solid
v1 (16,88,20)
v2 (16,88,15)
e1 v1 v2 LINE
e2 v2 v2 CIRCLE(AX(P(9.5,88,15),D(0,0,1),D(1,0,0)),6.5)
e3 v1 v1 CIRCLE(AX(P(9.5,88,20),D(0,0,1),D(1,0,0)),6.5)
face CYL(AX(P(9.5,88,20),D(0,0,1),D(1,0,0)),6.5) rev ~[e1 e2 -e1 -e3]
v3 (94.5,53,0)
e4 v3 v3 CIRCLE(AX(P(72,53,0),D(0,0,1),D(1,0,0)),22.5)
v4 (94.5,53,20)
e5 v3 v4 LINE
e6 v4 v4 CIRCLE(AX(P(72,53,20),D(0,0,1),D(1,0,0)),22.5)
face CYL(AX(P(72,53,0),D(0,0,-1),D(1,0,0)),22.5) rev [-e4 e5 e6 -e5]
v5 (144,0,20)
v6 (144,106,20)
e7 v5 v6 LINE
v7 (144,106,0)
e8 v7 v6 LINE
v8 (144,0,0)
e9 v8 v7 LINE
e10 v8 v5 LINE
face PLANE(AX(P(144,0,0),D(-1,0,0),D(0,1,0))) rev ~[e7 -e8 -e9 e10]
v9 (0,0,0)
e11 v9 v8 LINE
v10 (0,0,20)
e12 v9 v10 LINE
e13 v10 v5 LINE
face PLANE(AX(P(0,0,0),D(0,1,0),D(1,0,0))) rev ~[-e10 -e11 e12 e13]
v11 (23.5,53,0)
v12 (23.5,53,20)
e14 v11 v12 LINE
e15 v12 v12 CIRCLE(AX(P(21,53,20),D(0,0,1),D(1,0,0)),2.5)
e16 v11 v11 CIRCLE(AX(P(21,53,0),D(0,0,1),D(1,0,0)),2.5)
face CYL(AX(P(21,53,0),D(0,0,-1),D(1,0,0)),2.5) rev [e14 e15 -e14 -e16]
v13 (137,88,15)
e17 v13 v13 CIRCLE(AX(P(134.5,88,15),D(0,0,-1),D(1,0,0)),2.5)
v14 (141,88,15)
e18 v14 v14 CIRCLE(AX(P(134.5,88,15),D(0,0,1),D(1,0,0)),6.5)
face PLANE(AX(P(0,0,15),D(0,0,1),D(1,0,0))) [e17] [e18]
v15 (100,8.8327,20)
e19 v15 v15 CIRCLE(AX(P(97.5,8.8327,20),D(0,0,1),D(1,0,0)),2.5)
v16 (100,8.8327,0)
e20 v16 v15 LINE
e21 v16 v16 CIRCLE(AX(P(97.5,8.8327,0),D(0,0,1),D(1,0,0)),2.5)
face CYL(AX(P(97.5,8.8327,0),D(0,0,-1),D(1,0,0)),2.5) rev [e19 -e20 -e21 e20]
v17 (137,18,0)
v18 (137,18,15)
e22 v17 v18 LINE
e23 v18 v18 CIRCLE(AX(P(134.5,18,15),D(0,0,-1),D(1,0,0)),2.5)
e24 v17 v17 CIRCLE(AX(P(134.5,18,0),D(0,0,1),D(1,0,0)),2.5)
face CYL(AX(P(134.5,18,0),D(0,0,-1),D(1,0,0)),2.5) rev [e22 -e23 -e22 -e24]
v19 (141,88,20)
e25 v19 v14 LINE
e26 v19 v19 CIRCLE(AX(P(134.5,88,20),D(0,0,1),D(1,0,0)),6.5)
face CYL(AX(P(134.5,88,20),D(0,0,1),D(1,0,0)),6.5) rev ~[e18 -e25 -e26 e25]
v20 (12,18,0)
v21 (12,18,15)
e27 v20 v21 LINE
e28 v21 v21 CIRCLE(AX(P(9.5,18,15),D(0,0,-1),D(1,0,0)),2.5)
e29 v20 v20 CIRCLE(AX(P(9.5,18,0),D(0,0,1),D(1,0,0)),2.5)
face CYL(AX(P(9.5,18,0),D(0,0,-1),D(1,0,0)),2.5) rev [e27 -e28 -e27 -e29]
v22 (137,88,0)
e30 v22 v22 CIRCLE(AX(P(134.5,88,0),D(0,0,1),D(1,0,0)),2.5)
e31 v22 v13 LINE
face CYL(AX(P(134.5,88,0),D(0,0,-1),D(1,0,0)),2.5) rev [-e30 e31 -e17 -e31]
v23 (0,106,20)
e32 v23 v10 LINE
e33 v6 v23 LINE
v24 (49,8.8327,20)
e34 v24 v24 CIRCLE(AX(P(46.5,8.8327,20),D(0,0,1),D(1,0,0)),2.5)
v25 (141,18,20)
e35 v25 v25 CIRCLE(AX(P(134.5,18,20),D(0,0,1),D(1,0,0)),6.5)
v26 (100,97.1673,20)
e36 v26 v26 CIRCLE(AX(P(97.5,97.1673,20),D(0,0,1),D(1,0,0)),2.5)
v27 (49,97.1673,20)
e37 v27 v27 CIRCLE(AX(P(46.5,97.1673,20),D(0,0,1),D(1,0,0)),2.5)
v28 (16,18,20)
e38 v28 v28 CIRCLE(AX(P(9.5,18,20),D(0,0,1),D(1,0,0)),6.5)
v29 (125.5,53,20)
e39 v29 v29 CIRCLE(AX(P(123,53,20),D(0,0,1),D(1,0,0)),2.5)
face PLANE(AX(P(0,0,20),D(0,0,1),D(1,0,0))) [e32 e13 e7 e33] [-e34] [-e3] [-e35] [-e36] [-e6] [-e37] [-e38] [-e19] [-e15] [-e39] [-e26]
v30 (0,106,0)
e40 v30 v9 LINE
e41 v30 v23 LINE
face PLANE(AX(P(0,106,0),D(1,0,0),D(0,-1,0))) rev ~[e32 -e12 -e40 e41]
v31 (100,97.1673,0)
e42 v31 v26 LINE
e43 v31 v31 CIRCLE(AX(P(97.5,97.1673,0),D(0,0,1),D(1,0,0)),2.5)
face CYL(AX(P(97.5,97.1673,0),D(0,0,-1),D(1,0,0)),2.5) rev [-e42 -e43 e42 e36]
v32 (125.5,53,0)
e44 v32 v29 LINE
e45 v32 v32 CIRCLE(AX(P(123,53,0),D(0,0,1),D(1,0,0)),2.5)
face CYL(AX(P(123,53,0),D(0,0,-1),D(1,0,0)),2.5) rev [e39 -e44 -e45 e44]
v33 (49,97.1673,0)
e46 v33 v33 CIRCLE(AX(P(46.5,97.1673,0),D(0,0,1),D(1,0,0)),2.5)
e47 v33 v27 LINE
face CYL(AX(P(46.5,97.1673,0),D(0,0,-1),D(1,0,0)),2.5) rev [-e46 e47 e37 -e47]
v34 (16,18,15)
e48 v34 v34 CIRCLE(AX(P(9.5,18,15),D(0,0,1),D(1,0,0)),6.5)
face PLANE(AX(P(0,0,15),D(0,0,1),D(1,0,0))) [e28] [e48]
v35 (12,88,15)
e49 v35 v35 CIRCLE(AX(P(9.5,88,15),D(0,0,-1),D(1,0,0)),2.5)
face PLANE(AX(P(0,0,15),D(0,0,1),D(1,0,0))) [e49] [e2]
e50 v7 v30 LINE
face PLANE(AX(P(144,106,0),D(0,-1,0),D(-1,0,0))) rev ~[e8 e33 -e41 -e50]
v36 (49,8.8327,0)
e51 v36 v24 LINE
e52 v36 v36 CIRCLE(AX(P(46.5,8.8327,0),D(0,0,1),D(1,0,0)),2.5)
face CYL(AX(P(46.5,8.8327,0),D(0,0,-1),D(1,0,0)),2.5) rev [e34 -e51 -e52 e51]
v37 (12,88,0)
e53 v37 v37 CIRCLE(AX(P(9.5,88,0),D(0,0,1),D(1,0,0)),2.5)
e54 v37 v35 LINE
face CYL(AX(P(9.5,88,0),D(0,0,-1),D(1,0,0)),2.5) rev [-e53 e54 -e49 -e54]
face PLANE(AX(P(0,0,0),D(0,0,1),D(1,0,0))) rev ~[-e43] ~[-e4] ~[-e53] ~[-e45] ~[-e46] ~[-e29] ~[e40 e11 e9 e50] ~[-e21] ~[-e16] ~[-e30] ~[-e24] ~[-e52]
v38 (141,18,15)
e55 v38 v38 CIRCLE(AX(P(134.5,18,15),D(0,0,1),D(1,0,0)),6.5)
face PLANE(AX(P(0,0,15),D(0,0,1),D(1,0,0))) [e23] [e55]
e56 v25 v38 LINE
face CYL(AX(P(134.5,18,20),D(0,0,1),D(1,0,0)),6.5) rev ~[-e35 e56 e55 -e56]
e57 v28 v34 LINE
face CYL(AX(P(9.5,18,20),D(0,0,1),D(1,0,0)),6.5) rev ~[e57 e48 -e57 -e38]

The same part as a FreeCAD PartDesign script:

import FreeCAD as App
import Part
import Sketcher

V = App.Vector
Q = App.Units.Quantity

doc = App.newDocument("Part")
body = doc.addObject("PartDesign::Body", "Body")

sketch1 = body.newObject("Sketcher::SketchObject", "Sketch")
sketch1.AttachmentSupport = (doc.getObject("XY_Plane"), [""])
sketch1.MapMode = "FlatFace"
sketch1.addGeometry(Part.LineSegment(V(0, 106, 0), V(0, 0, 0)), False)
sketch1.addGeometry(Part.LineSegment(V(0, 0, 0), V(144, 0, 0)), False)
sketch1.addGeometry(Part.LineSegment(V(144, 0, 0), V(144, 106, 0)), False)
sketch1.addGeometry(Part.LineSegment(V(144, 106, 0), V(0, 106, 0)), False)
sketch1.addGeometry(Part.Circle(V(9.5, 18, 0), V(0, 0, 1), 2.5), False)
sketch1.addGeometry(Part.Circle(V(46.5, 8.8, 0), V(0, 0, 1), 2.5), False)
sketch1.addGeometry(Part.Circle(V(97.5, 8.8, 0), V(0, 0, 1), 2.5), False)
sketch1.addGeometry(Part.Circle(V(134.5, 18, 0), V(0, 0, 1), 2.5), False)
sketch1.addGeometry(Part.Circle(V(21, 53, 0), V(0, 0, 1), 2.5), False)
sketch1.addGeometry(Part.Circle(V(9.5, 88, 0), V(0, 0, 1), 2.5), False)
sketch1.addGeometry(Part.Circle(V(46.5, 97.2, 0), V(0, 0, 1), 2.5), False)
sketch1.addGeometry(Part.Circle(V(72, 53, 0), V(0, 0, 1), 22.5), False)
sketch1.addGeometry(Part.Circle(V(123, 53, 0), V(0, 0, 1), 2.5), False)
sketch1.addGeometry(Part.Circle(V(97.5, 97.2, 0), V(0, 0, 1), 2.5), False)
sketch1.addGeometry(Part.Circle(V(134.5, 88, 0), V(0, 0, 1), 2.5), False)
sketch1.addConstraint(Sketcher.Constraint("Coincident", 0, 2, 1, 1))
sketch1.addConstraint(Sketcher.Constraint("Coincident", 1, 2, 2, 1))
sketch1.addConstraint(Sketcher.Constraint("Coincident", 2, 2, 3, 1))
sketch1.addConstraint(Sketcher.Constraint("Coincident", 3, 2, 0, 1))
sketch1.addConstraint(Sketcher.Constraint("Vertical", 0))
sketch1.addConstraint(Sketcher.Constraint("Horizontal", 1))
sketch1.addConstraint(Sketcher.Constraint("Vertical", 2))
sketch1.addConstraint(Sketcher.Constraint("Horizontal", 3))
sketch1.addConstraint(Sketcher.Constraint("Coincident", 0, 2, -1, 1))
sketch1.addConstraint(Sketcher.Constraint("Equal", 4, 5))
sketch1.addConstraint(Sketcher.Constraint("Equal", 5, 6))
sketch1.addConstraint(Sketcher.Constraint("Equal", 6, 7))
sketch1.addConstraint(Sketcher.Constraint("Equal", 7, 8))
sketch1.addConstraint(Sketcher.Constraint("Equal", 8, 9))
sketch1.addConstraint(Sketcher.Constraint("Equal", 9, 10))
sketch1.addConstraint(Sketcher.Constraint("Equal", 10, 12))
sketch1.addConstraint(Sketcher.Constraint("Equal", 12, 13))
sketch1.addConstraint(Sketcher.Constraint("Equal", 13, 14))
sketch1.addConstraint(Sketcher.Constraint("Horizontal", 5, 3, 6, 3))
sketch1.addConstraint(Sketcher.Constraint("Horizontal", 4, 3, 7, 3))
sketch1.addConstraint(Sketcher.Constraint("Horizontal", 8, 3, 11, 3))
sketch1.addConstraint(Sketcher.Constraint("Horizontal", 11, 3, 12, 3))
sketch1.addConstraint(Sketcher.Constraint("Horizontal", 10, 3, 13, 3))
sketch1.addConstraint(Sketcher.Constraint("Horizontal", 9, 3, 14, 3))
sketch1.addConstraint(Sketcher.Constraint("Vertical", 4, 3, 9, 3))
sketch1.addConstraint(Sketcher.Constraint("Vertical", 5, 3, 10, 3))
sketch1.addConstraint(Sketcher.Constraint("Vertical", 6, 3, 13, 3))
sketch1.addConstraint(Sketcher.Constraint("Vertical", 7, 3, 14, 3))
sketch1.addConstraint(Sketcher.Constraint("Diameter", 4, Q("5 mm")))
sketch1.addConstraint(Sketcher.Constraint("Diameter", 11, Q("45 mm")))
sketch1.addConstraint(Sketcher.Constraint("DistanceX", 1, 1, 1, 2, Q("144 mm")))
sketch1.addConstraint(Sketcher.Constraint("DistanceY", 0, 2, 0, 1, Q("106 mm")))
sketch1.addConstraint(Sketcher.Constraint("DistanceX", 5, 3, 6, 3, Q("51 mm")))
sketch1.addConstraint(Sketcher.Constraint("DistanceY", 4, 3, 9, 3, Q("70 mm")))
sketch1.addConstraint(Sketcher.Constraint("DistanceX", 8, 3, 11, 3, Q("51 mm")))
sketch1.addConstraint(Sketcher.Constraint("DistanceX", 11, 3, 12, 3, Q("51 mm")))
sketch1.addConstraint(Sketcher.Constraint("DistanceX", -1, 1, 4, 3, Q("9.5 mm")))
sketch1.addConstraint(Sketcher.Constraint("DistanceX", 7, 3, 1, 2, Q("9.5 mm")))
sketch1.addConstraint(Sketcher.Constraint("DistanceY", -1, 1, 4, 3, Q("18 mm")))
sketch1.addConstraint(Sketcher.Constraint("DistanceX", -1, 1, 8, 3, Q("21 mm")))
sketch1.addConstraint(Sketcher.Constraint("DistanceY", -1, 1, 8, 3, Q("53 mm")))
sketch1.addConstraint(Sketcher.Constraint("DistanceX", 4, 3, 5, 3, Q("37 mm")))
sketch1.addConstraint(Sketcher.Constraint("DistanceY", -1, 1, 5, 3, Q("8.8327 mm")))
sketch1.addConstraint(Sketcher.Constraint("DistanceY", -1, 1, 10, 3, Q("97.1673 mm")))
pad1 = body.newObject("PartDesign::Pad", "Pad")
pad1.Profile = sketch1
pad1.Length = 20

sketch2 = body.newObject("Sketcher::SketchObject", "Sketch001")
sketch2.AttachmentSupport = (doc.getObject("XY_Plane"), [""])
sketch2.MapMode = "FlatFace"
sketch2.AttachmentOffset = App.Placement(V(0, 0, 20), App.Rotation())
sketch2.addGeometry(Part.Circle(V(10, 88, 0), V(0, 0, 1), 6), False)
sketch2.addGeometry(Part.Circle(V(10, 18, 0), V(0, 0, 1), 6), False)
sketch2.addGeometry(Part.Circle(V(134, 18, 0), V(0, 0, 1), 6), False)
sketch2.addGeometry(Part.Circle(V(134, 88, 0), V(0, 0, 1), 6), False)
sketch2.addConstraint(Sketcher.Constraint("Equal", 0, 1))
sketch2.addConstraint(Sketcher.Constraint("Equal", 1, 2))
sketch2.addConstraint(Sketcher.Constraint("Equal", 2, 3))
sketch2.addConstraint(Sketcher.Constraint("Horizontal", 1, 3, 2, 3))
sketch2.addConstraint(Sketcher.Constraint("Horizontal", 0, 3, 3, 3))
sketch2.addConstraint(Sketcher.Constraint("Vertical", 0, 3, 1, 3))
sketch2.addConstraint(Sketcher.Constraint("Vertical", 2, 3, 3, 3))
sketch2.addConstraint(Sketcher.Constraint("Diameter", 0, Q("13 mm")))
sketch2.addConstraint(Sketcher.Constraint("DistanceY", -1, 1, 0, 3, Q("88 mm")))
sketch2.addConstraint(Sketcher.Constraint("DistanceY", -1, 1, 1, 3, Q("18 mm")))
sketch2.addConstraint(Sketcher.Constraint("DistanceX", 1, 3, 2, 3, Q("125 mm")))
sketch2.addConstraint(Sketcher.Constraint("DistanceX", -1, 1, 0, 3, Q("9.5 mm")))
pocket1 = body.newObject("PartDesign::Pocket", "Pocket")
pocket1.Profile = sketch2
pocket1.Length = 5

doc.recompute()
